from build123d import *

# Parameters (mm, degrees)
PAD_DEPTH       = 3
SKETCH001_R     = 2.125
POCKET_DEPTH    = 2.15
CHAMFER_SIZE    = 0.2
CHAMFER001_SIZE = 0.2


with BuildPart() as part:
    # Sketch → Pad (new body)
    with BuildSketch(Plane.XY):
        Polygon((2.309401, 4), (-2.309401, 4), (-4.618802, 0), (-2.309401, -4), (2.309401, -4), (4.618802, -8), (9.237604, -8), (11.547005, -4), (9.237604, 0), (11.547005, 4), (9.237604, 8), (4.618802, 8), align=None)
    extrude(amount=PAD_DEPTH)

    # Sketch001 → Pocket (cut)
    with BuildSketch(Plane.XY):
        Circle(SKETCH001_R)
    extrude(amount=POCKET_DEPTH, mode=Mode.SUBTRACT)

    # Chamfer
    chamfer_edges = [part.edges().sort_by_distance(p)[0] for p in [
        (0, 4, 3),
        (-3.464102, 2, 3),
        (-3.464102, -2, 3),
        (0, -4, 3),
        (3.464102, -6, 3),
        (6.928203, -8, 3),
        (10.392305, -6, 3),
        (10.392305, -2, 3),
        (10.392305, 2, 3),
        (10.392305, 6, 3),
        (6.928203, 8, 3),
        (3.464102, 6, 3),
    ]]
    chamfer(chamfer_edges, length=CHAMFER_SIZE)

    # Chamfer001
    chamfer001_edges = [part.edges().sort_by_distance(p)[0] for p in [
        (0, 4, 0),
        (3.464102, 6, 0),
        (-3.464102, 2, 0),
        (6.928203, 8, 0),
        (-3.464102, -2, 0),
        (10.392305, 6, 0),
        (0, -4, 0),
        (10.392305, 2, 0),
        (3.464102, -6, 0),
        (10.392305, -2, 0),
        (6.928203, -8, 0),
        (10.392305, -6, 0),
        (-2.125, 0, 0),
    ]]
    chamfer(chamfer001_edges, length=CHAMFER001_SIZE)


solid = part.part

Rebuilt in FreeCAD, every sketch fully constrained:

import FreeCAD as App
import Part
import Sketcher

V = App.Vector
Q = App.Units.Quantity


def edges_at(feature, points):
    """Names of the edges that pass closest to the given points."""
    edges = feature.Shape.Edges
    near = lambda p: min(range(len(edges)), key=lambda i: edges[i].distToShape(Part.Vertex(*p))[0])
    return sorted({f"Edge{near(p) + 1}" for p in points})


def add_polygon(sketch, points):
    """Adds a closed chain of lines whose ends are joined by coincident constraints."""
    first, n = sketch.GeometryCount, len(points)
    for a, b in zip(points, points[1:] + points[:1]):
        sketch.addGeometry(Part.LineSegment(App.Vector(*a, 0), App.Vector(*b, 0)), False)
    for i in range(n):
        sketch.addConstraint(Sketcher.Constraint("Coincident", first + i, 2, first + (i + 1) % n, 1))

doc = App.newDocument("Part")
body = doc.addObject("PartDesign::Body", "Body")

sketch1 = body.newObject("Sketcher::SketchObject", "Sketch")
sketch1.AttachmentSupport = (doc.getObject("XY_Plane"), [""])
sketch1.MapMode = "FlatFace"
add_polygon(sketch1, [(2.3, 4), (-2.3, 4), (-4.6, 0), (-2.3, -4), (2.3, -4), (4.6, -8), (9.2, -8), (11.5, -4), (9.2, 0), (11.5, 4), (9.2, 8), (4.6, 8)])
sketch1.addConstraint([
    Sketcher.Constraint("Horizontal", 0),
    Sketcher.Constraint("Horizontal", 3),
    Sketcher.Constraint("Horizontal", 5),
    Sketcher.Constraint("Horizontal", 10),
    Sketcher.Constraint("Symmetric", 0, 2, 3, 2, -1, 1),
    Sketcher.Constraint("Symmetric", 6, 2, 8, 2, -1),
    Sketcher.Constraint("Symmetric", 5, 2, 9, 2, -1),
    Sketcher.Constraint("PointOnObject", 1, 2, -1),
    Sketcher.Constraint("PointOnObject", 7, 2, -1),
    Sketcher.Constraint("Parallel", 2, 4),
    Sketcher.Constraint("Parallel", 1, 6),
    Sketcher.Constraint("Parallel", 4, 7),
    Sketcher.Constraint("Parallel", 6, 8),
    Sketcher.Constraint("Parallel", 8, 11),
    Sketcher.Constraint("Horizontal", 3, 2, 6, 2),
    Sketcher.Constraint("Vertical", 5, 2, 7, 2),
    Sketcher.Constraint("Vertical", 4, 2, 10, 2),
    Sketcher.Constraint("Equal", 3, 5),
    Sketcher.Constraint("Angle", 1, Q("-119.999999 deg")),
    Sketcher.Constraint("DistanceY", -1, 1, 0, 2, 4.0),
    Sketcher.Constraint("DistanceX", 0, 2, 0, 1, 4.618802),
])
pad1 = body.newObject("PartDesign::Pad", "Pad")
pad1.Profile = sketch1
pad1.Length = 3

sketch2 = body.newObject("Sketcher::SketchObject", "Sketch001")
sketch2.AttachmentSupport = (doc.getObject("XY_Plane"), [""])
sketch2.MapMode = "FlatFace"
sketch2.addGeometry(Part.Circle(V(0, 0, 0), V(0, 0, 1), 2.1), False)
sketch2.addConstraint([
    Sketcher.Constraint("Coincident", 0, 3, -1, 1),
    Sketcher.Constraint("Diameter", 0, 4.25),
])
pocket1 = body.newObject("PartDesign::Pocket", "Pocket")
pocket1.Profile = sketch2
pocket1.Length = 2.15
pocket1.Reversed = True
doc.recompute()

chamfer = body.newObject("PartDesign::Chamfer", "Chamfer")
chamfer.Base = (pocket1, edges_at(pocket1, [
    (0, 4, 3),
    (-3.464, 2, 3),
    (-3.464, -2, 3),
    (0, -4, 3),
    (3.464, -6, 3),
    (6.928, -8, 3),
    (10.392, -6, 3),
    (10.392, -2, 3),
    (10.392, 2, 3),
    (10.392, 6, 3),
    (6.928, 8, 3),
    (3.464, 6, 3),
]))
chamfer.Size = 0.2
doc.recompute()

chamfer2 = body.newObject("PartDesign::Chamfer", "Chamfer001")
chamfer2.Base = (chamfer, edges_at(chamfer, [
    (0, 4, 0),
    (3.464, 6, 0),
    (-3.464, 2, 0),
    (6.928, 8, 0),
    (-3.464, -2, 0),
    (10.392, 6, 0),
    (0, -4, 0),
    (10.392, 2, 0),
    (3.464, -6, 0),
    (10.392, -2, 0),
    (6.928, -8, 0),
    (10.392, -6, 0),
    (-2.125, 0, 0),
]))
chamfer2.Size = 0.2

doc.recompute()
